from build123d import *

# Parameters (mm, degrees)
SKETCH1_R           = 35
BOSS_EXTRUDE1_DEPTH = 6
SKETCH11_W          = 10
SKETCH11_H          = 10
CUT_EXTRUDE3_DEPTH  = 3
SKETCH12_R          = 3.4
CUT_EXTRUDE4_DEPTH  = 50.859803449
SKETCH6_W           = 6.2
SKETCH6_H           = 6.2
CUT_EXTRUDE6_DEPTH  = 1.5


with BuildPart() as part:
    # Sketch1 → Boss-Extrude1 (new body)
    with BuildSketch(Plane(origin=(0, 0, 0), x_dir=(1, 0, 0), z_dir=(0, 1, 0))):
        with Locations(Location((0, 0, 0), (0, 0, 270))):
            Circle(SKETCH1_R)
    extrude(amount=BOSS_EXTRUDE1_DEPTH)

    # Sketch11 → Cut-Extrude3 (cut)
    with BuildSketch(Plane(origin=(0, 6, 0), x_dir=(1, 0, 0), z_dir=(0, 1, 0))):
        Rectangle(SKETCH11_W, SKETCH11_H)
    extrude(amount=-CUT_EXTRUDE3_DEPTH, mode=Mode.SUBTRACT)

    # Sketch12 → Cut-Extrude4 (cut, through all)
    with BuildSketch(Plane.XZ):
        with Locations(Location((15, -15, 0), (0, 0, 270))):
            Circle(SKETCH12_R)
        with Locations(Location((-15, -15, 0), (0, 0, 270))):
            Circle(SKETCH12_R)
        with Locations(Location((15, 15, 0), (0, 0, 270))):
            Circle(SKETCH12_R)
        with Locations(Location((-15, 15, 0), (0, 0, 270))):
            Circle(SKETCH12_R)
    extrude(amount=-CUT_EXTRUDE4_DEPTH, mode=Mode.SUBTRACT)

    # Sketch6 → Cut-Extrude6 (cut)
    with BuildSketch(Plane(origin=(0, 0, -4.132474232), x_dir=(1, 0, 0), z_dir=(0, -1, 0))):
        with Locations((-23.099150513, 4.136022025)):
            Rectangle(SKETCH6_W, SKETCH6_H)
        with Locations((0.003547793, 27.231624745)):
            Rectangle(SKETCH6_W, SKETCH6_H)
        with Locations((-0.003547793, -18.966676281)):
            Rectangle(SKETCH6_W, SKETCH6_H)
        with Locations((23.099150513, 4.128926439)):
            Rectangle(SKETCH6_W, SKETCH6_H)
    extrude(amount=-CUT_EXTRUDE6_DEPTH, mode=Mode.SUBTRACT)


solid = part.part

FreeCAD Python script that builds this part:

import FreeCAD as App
import Part
import Sketcher
from FreeCAD import Vector
Q = App.Units.Quantity


def add_polygon(sketch, points):
    """Adds a closed chain of lines whose ends are joined by coincident constraints."""
    first, n = sketch.GeometryCount, len(points)
    for a, b in zip(points, points[1:] + points[:1]):
        sketch.addGeometry(Part.LineSegment(App.Vector(*a, 0), App.Vector(*b, 0)), False)
    for i in range(n):
        sketch.addConstraint(Sketcher.Constraint("Coincident", first + i, 2, first + (i + 1) % n, 1))

doc = App.newDocument("Part")
body = doc.addObject("PartDesign::Body", "Body")

# Sketch on XZ plane
sketch1 = body.newObject("Sketcher::SketchObject", "Sketch")
sketch1.AttachmentSupport = (doc.getObject("XZ_Plane"), [""])
sketch1.MapMode = "FlatFace"
sketch1.addGeometry(Part.Circle(Vector(0, 0, 0), Vector(0, 0, 1), 35), False)
sketch1.addConstraint([
    Sketcher.Constraint("Coincident", 0, 3, -1, 1),
    Sketcher.Constraint("Diameter", 0, Q("70 mm")),
])
pad1 = body.newObject("PartDesign::Pad", "Pad")
pad1.Profile = sketch1
pad1.Length = 6
pad1.Reversed = True

# Sketch on XZ plane
sketch2 = body.newObject("Sketcher::SketchObject", "Sketch001")
sketch2.AttachmentSupport = (doc.getObject("XZ_Plane"), [""])
sketch2.MapMode = "FlatFace"
sketch2.AttachmentOffset = App.Placement(Vector(0, 0, -6), App.Rotation())
add_polygon(sketch2, [(-5, -5), (-5, 5), (5, 5), (5, -5)])  # lines 0-3
sketch2.addConstraint([
    Sketcher.Constraint("Vertical", 0),
    Sketcher.Constraint("Horizontal", 1),
    Sketcher.Constraint("Vertical", 2),
    Sketcher.Constraint("Horizontal", 3),
    Sketcher.Constraint("Symmetric", 0, 2, 2, 2, -1, 1),
    Sketcher.Constraint("Equal", 3, 0),
    Sketcher.Constraint("DistanceX", 1, 1, 1, 2, Q("10 mm")),
])
pocket1 = body.newObject("PartDesign::Pocket", "Pocket")
pocket1.Profile = sketch2
pocket1.Length = 3
pocket1.Reversed = True

# Sketch on XZ plane
sketch3 = body.newObject("Sketcher::SketchObject", "Sketch002")
sketch3.AttachmentSupport = (doc.getObject("XZ_Plane"), [""])
sketch3.MapMode = "FlatFace"
sketch3.addGeometry([
    Part.Circle(Vector(15, -15, 0), Vector(0, 0, 1), 3.4),
    Part.Circle(Vector(-15, -15, 0), Vector(0, 0, 1), 3.4),
    Part.Circle(Vector(15, 15, 0), Vector(0, 0, 1), 3.4),
    Part.Circle(Vector(-15, 15, 0), Vector(0, 0, 1), 3.4),
], False)
sketch3.addConstraint([
    Sketcher.Constraint("Equal", 0, 1),
    Sketcher.Constraint("Equal", 1, 2),
    Sketcher.Constraint("Equal", 2, 3),
    Sketcher.Constraint("Symmetric", 1, 3, 2, 3, -1, 1),
    Sketcher.Constraint("Symmetric", 0, 3, 3, 3, -1, 1),
    Sketcher.Constraint("Symmetric", 0, 3, 1, 3, -2),
    Sketcher.Constraint("Diameter", 0, Q("6.8 mm")),
    Sketcher.Constraint("DistanceX", -1, 1, 0, 3, Q("15 mm")),
    Sketcher.Constraint("DistanceY", 0, 3, -1, 1, Q("15 mm")),
])
pocket2 = body.newObject("PartDesign::Pocket", "Pocket001")
pocket2.Profile = sketch3
pocket2.Type = "ThroughAll"

# Sketch on XZ plane
sketch4 = body.newObject("Sketcher::SketchObject", "Sketch003")
sketch4.AttachmentSupport = (doc.getObject("XZ_Plane"), [""])
sketch4.MapMode = "FlatFace"
add_polygon(sketch4, [(-26, 3), (-26, -3), (-20, -3), (-20, 3)])  # lines 0-3
add_polygon(sketch4, [(-3, 26), (-3, 20), (3, 20), (3, 26)])  # lines 4-7
add_polygon(sketch4, [(-3, -20), (-3, -26), (3, -26), (3, -20)])  # lines 8-11
add_polygon(sketch4, [(20, 3), (20, -3), (26, -3), (26, 3)])  # lines 12-15
sketch4.addConstraint([
    Sketcher.Constraint("Vertical", 0),
    Sketcher.Constraint("Horizontal", 1),
    Sketcher.Constraint("Vertical", 2),
    Sketcher.Constraint("Horizontal", 3),
    Sketcher.Constraint("Vertical", 4),
    Sketcher.Constraint("Horizontal", 5),
    Sketcher.Constraint("Vertical", 6),
    Sketcher.Constraint("Horizontal", 7),
    Sketcher.Constraint("Vertical", 8),
    Sketcher.Constraint("Horizontal", 9),
    Sketcher.Constraint("Vertical", 10),
    Sketcher.Constraint("Horizontal", 11),
    Sketcher.Constraint("Vertical", 12),
    Sketcher.Constraint("Horizontal", 13),
    Sketcher.Constraint("Vertical", 14),
    Sketcher.Constraint("Horizontal", 15),
    Sketcher.Constraint("Symmetric", 6, 2, 8, 2, -1, 1),
    Sketcher.Constraint("Symmetric", 4, 2, 10, 2, -1, 1),
    Sketcher.Constraint("Symmetric", 2, 2, 12, 2, -1, 1),
    Sketcher.Constraint("Symmetric", 0, 2, 14, 2, -1, 1),
    Sketcher.Constraint("Equal", 3, 5),
    Sketcher.Constraint("Equal", 15, 0),
    Sketcher.Constraint("Equal", 2, 4),
    Sketcher.Constraint("DistanceX", 1, 1, 1, 2, Q("6.2 mm")),
    Sketcher.Constraint("DistanceX", 2, 2, 4, 2, Q("16.902698 mm")),
    Sketcher.Constraint("DistanceY", 8, 2, 1, 2, Q("23.102698 mm")),
    Sketcher.Constraint("DistanceY", 8, 2, 4, 2, Q("46.198301 mm")),
    Sketcher.Constraint("DistanceX", 0, 2, -1, 1, Q("26.199151 mm")),
])
pocket3 = body.newObject("PartDesign::Pocket", "Pocket002")
pocket3.Profile = sketch4
pocket3.Length = 1.5

doc.recompute()
